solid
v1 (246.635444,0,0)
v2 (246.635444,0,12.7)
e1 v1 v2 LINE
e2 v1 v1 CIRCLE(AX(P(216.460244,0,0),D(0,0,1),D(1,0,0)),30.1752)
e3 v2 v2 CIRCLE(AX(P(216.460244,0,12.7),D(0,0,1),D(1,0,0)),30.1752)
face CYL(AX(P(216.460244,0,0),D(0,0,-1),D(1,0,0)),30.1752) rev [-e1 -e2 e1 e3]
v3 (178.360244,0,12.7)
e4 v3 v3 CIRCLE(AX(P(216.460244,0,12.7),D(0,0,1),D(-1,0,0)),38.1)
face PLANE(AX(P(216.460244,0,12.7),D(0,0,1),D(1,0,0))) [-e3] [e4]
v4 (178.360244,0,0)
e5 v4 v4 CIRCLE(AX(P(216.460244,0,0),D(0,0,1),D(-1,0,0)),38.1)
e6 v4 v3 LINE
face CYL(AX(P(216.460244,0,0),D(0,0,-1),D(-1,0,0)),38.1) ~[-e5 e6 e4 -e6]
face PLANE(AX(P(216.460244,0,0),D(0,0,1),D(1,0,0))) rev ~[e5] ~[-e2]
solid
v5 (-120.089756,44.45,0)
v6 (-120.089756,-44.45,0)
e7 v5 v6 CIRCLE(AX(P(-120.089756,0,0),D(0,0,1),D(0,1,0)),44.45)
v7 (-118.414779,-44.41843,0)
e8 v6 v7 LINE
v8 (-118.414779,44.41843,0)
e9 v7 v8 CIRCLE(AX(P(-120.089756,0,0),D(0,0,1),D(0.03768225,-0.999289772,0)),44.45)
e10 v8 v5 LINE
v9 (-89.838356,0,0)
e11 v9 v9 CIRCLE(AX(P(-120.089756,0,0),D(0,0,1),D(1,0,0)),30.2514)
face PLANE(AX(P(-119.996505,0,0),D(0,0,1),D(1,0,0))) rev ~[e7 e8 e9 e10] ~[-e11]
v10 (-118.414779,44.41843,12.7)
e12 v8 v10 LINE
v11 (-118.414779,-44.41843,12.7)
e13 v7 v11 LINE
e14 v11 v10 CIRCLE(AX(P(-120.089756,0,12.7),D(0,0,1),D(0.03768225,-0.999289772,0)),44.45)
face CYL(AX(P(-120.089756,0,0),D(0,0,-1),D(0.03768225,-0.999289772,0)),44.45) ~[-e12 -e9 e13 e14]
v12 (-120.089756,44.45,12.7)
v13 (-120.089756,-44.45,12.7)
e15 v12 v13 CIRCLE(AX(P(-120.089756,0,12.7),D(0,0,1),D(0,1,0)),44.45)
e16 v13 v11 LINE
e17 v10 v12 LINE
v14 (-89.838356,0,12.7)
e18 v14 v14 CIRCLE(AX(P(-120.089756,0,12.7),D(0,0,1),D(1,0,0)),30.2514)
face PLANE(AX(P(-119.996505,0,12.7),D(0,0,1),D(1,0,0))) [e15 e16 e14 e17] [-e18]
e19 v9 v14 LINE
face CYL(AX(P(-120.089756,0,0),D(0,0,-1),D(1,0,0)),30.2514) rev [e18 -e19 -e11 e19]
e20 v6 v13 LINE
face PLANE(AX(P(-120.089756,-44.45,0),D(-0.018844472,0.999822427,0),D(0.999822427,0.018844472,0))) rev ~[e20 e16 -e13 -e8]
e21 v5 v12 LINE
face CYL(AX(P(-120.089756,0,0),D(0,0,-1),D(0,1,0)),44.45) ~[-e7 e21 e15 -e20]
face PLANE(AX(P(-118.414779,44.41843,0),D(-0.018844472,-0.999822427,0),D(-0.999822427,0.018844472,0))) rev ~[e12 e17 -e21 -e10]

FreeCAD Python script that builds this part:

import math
import FreeCAD as App
import Part
import Sketcher
from FreeCAD import Vector
Q = App.Units.Quantity

doc = App.newDocument("Part")
body = doc.addObject("PartDesign::Body", "Body")

# Sketch on XY plane
sketch1 = body.newObject("Sketcher::SketchObject", "Sketch")
sketch1.AttachmentSupport = (doc.getObject("XY_Plane"), [""])
sketch1.MapMode = "FlatFace"
sketch1.addGeometry(Part.LineSegment(Vector(-118.414779, 44.41843, 0), Vector(-120.089756, 44.45, 0)), False)
sketch1.addGeometry(Part.ArcOfCircle(Part.Circle(Vector(-120.089756, 0, 0), Vector(0, 0, 1), 44.45), math.radians(90), math.radians(270)), False)
sketch1.addGeometry(Part.LineSegment(Vector(-120.089756, -44.45, 0), Vector(-118.414779, -44.41843, 0)), False)
sketch1.addGeometry(Part.ArcOfCircle(Part.Circle(Vector(-120.089756, 0, 0), Vector(0, 0, 1), 44.45), math.radians(-87.840455), math.radians(87.840455)), False)
sketch1.addGeometry(Part.Circle(Vector(-120.089756, 0, 0), Vector(0, 0, 1), 30.2514), False)
sketch1.addConstraint(Sketcher.Constraint("Coincident", 0, 2, 1, 1))
sketch1.addConstraint(Sketcher.Constraint("Coincident", 1, 2, 2, 1))
sketch1.addConstraint(Sketcher.Constraint("Coincident", 2, 2, 3, 1))
sketch1.addConstraint(Sketcher.Constraint("Coincident", 3, 2, 0, 1))
sketch1.addConstraint(Sketcher.Constraint("Coincident", 3, 3, 1, 3))
sketch1.addConstraint(Sketcher.Constraint("Coincident", 4, 3, 1, 3))
sketch1.addConstraint(Sketcher.Constraint("Equal", 1, 3))
sketch1.addConstraint(Sketcher.Constraint("Symmetric", 0, 2, 1, 2, -1))
sketch1.addConstraint(Sketcher.Constraint("Vertical", 4, 3, 0, 2))
sketch1.addConstraint(Sketcher.Constraint("Vertical", 2, 2, 3, 2))
sketch1.addConstraint(Sketcher.Constraint("Radius", 1, Q("1.75 in")))
sketch1.addConstraint(Sketcher.Constraint("Diameter", 4, Q("2.382 in")))
sketch1.addConstraint(Sketcher.Constraint("DistanceX", 2, 2, -1, 1, 118.414779))
sketch1.addConstraint(Sketcher.Constraint("DistanceY", 2, 2, -1, 1, 44.41843))
pad1 = body.newObject("PartDesign::Pad", "Pad")
pad1.Profile = sketch1
pad1.Length = Q("0.5 in")
body2 = doc.addObject("PartDesign::Body", "Body001")

# Sketch on XY plane
sketch2 = body2.newObject("Sketcher::SketchObject", "Sketch001")
sketch2.AttachmentSupport = (doc.getObject("XY_Plane001"), [""])
sketch2.MapMode = "FlatFace"
sketch2.addGeometry(Part.Circle(Vector(216.460244, 0, 0), Vector(0, 0, 1), 38.1), False)
sketch2.addGeometry(Part.Circle(Vector(216.460244, 0, 0), Vector(0, 0, 1), 30.1752), False)
sketch2.addConstraint(Sketcher.Constraint("Coincident", 1, 3, 0, 3))
sketch2.addConstraint(Sketcher.Constraint("PointOnObject", 0, 3, -1))
sketch2.addConstraint(Sketcher.Constraint("Diameter", 0, Q("3 in")))
sketch2.addConstraint(Sketcher.Constraint("Diameter", 1, Q("2.376 in")))
sketch2.addConstraint(Sketcher.Constraint("DistanceX", -1, 1, 0, 3, 216.460244))
pad2 = body2.newObject("PartDesign::Pad", "Pad001")
pad2.Profile = sketch2
pad2.Length = Q("0.5 in")

doc.recompute()
